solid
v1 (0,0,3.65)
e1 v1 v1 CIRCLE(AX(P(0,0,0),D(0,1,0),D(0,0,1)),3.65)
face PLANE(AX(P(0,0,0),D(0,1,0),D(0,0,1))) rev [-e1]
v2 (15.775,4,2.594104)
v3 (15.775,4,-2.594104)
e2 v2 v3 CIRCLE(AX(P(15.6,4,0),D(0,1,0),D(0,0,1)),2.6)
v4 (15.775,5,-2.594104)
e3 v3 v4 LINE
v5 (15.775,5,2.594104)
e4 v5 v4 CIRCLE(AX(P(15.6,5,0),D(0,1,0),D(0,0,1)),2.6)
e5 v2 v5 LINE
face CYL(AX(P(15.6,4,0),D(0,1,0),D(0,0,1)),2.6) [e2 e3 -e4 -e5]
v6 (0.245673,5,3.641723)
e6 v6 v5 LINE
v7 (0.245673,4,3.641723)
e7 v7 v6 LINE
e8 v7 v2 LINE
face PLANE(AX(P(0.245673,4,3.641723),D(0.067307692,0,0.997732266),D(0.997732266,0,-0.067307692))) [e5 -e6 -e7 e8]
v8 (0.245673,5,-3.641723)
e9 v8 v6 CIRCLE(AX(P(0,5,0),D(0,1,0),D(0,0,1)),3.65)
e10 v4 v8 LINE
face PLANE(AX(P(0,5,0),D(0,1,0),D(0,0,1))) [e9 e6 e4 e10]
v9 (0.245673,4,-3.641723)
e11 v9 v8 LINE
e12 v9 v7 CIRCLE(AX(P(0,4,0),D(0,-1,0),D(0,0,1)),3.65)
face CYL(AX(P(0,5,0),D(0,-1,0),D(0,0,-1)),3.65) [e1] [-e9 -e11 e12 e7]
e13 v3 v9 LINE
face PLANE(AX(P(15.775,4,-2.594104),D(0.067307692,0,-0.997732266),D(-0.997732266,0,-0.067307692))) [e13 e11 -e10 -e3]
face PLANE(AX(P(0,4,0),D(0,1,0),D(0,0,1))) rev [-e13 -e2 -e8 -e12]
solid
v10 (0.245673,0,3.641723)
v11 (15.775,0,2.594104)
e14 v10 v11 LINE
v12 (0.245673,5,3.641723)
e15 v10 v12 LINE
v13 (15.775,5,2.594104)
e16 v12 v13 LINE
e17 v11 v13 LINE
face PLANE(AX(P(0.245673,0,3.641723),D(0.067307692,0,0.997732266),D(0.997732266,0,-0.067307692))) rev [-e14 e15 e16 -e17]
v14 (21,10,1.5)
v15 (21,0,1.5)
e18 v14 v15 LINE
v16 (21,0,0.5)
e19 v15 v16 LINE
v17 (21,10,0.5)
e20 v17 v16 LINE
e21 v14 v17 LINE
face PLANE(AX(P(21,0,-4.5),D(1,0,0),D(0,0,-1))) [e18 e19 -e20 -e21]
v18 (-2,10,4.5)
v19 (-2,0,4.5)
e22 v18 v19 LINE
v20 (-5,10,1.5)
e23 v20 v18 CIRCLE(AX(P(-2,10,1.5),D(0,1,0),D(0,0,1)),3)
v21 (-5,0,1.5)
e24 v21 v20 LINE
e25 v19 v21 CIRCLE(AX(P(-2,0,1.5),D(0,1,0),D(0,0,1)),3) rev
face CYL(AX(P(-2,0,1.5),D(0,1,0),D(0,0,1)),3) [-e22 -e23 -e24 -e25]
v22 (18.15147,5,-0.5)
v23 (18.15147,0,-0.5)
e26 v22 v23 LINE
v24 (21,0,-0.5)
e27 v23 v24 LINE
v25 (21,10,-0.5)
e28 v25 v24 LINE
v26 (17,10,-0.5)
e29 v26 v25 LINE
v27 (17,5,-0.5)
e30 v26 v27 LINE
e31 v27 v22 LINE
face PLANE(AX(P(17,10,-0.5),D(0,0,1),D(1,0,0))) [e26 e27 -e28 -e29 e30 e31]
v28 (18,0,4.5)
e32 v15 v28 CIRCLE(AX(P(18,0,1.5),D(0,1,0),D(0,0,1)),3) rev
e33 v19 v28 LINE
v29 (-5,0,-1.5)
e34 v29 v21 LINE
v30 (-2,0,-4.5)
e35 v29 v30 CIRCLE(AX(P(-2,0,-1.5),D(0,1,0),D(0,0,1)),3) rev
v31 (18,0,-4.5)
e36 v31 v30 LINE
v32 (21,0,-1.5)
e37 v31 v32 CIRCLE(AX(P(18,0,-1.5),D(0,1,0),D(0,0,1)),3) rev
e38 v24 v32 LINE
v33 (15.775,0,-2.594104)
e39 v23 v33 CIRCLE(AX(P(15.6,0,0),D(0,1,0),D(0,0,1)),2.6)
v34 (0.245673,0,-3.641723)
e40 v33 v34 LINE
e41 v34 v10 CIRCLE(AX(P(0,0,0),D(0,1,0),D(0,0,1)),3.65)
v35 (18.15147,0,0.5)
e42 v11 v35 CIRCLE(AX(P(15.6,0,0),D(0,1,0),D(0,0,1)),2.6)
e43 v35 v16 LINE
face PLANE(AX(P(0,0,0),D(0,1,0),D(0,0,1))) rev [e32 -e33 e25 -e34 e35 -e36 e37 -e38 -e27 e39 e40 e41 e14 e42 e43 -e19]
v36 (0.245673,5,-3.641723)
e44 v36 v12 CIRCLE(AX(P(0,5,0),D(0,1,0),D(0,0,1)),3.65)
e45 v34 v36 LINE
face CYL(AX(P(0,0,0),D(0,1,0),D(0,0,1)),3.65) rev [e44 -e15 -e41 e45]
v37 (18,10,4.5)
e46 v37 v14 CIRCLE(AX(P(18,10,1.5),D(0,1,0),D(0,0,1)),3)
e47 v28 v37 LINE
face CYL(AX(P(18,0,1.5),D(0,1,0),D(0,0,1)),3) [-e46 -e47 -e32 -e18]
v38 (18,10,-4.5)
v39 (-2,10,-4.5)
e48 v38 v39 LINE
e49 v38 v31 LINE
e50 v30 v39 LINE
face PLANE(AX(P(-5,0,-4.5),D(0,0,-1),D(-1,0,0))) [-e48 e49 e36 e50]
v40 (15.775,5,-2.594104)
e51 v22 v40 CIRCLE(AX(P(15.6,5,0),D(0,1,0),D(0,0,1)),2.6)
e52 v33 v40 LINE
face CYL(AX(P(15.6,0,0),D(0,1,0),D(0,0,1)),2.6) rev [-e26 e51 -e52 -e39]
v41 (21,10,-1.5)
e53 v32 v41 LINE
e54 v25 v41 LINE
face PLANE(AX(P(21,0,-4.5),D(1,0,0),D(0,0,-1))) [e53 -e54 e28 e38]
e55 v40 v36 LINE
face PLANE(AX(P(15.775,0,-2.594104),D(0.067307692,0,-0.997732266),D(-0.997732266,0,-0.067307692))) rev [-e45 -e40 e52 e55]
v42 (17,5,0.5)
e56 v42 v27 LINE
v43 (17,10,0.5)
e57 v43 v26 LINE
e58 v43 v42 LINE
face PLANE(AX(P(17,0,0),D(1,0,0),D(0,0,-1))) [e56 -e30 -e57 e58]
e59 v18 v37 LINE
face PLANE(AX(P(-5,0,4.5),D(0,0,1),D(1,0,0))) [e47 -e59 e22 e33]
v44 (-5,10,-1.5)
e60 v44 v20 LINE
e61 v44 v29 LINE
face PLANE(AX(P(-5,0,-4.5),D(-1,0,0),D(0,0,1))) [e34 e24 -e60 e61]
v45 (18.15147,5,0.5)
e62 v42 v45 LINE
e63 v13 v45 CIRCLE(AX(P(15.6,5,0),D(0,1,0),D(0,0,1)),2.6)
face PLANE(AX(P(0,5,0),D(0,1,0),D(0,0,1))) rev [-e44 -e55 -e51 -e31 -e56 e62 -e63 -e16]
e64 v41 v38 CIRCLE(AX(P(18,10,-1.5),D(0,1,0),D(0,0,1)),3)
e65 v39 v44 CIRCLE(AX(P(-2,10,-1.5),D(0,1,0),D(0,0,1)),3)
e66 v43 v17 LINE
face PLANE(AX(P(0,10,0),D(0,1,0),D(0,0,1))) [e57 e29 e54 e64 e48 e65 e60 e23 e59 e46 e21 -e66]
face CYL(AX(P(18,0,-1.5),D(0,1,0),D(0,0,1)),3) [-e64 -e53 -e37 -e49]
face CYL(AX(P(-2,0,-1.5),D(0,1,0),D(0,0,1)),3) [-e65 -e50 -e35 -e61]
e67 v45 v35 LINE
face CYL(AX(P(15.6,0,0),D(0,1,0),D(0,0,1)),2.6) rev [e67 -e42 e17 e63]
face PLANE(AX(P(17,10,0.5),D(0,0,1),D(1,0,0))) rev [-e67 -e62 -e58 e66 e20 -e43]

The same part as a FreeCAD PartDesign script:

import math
import FreeCAD as App
import Part
import Sketcher
Q = App.Units.Quantity


def edges_at(feature, points):
    """Names of the edges that pass closest to the given points."""
    edges = feature.Shape.Edges
    near = lambda p: min(range(len(edges)), key=lambda i: edges[i].distToShape(Part.Vertex(*p))[0])
    return sorted({f"Edge{near(p) + 1}" for p in points})

doc = App.newDocument("Part")
params = doc.addObject("Spreadsheet::Sheet", "Params")
for row, (alias, value) in enumerate([
    ("sketch1_diameter", "7.3 mm"),
    ("pad1_length", "5 mm"),
    ("sketch2_radius", "2.6 mm"),
    ("sketch2_radius2", "3.65 mm"),
    ("pad2_length", "1 mm"),
    ("sketch3_radius", "2.6 mm"),
    ("sketch3_width", "26 mm"),
    ("sketch3_height", "9 mm"),
    ("sketch3_radius2", "3.65 mm"),
    ("pad3_length", "5 mm"),
    ("sketch4_width", "26 mm"),
    ("sketch4_height", "9 mm"),
    ("pad4_length", "5 mm"),
    ("sketch5_width", "10 mm"),
    ("sketch5_height", "1 mm"),
    ("pocket1_length", "4 mm"),
    ("fillet_radius", "3 mm"),
    ("fillet2_radius", "3 mm"),
], start=1):
    params.set(f"A{row}", alias)
    params.set(f"B{row}", "=" + value)
    params.setAlias(f"B{row}", alias)

body = doc.addObject("PartDesign::Body", "Body")

# Sketch on XZ plane
sketch1 = doc.addObject("Sketcher::SketchObject", "Sketch")
body.addObject(sketch1)
sketch1.AttachmentSupport = (doc.XZ_Plane, [""])
sketch1.MapMode = "FlatFace"
sketch1.addGeometry(Part.Circle(App.Vector(0, 0, 0), App.Vector(0, 0, 1), 3.6), False)
sketch1.addConstraint([
    Sketcher.Constraint("Coincident", 0, 3, -1, 1),
    Sketcher.Constraint("Diameter", 0, Q("7.3 mm")),
])
sketch1.setExpression("Constraints[1]", "Params.sketch1_diameter")
pad1 = doc.addObject("PartDesign::Pad", "Pad")
body.addObject(pad1)
pad1.Profile = sketch1
pad1.setExpression("Length", "Params.pad1_length")
pad1.Reversed = True

# Sketch on XZ plane
sketch2 = doc.addObject("Sketcher::SketchObject", "Sketch001")
body.addObject(sketch2)
sketch2.AttachmentSupport = (doc.XZ_Plane, [""])
sketch2.MapMode = "FlatFace"
sketch2.AttachmentOffset = App.Placement(App.Vector(0, 0, -4), App.Rotation())
sketch2.addGeometry([
    Part.LineSegment(App.Vector(0.2, 3.6, 0), App.Vector(15.8, 2.6, 0)),
    Part.ArcOfCircle(Part.Circle(App.Vector(15.6, 0, 0), App.Vector(0, 0, 1), 2.6), math.radians(-86), math.radians(86)),
    Part.LineSegment(App.Vector(15.8, -2.6, 0), App.Vector(0.2, -3.6, 0)),
    Part.ArcOfCircle(Part.Circle(App.Vector(0, 0, 0), App.Vector(0, 0, 1), 3.6), math.radians(-86), math.radians(86)),
], False)
sketch2.addConstraint([
    Sketcher.Constraint("Tangent", 0, 2, 1, 2),
    Sketcher.Constraint("Tangent", 1, 1, 2, 1),
    Sketcher.Constraint("Tangent", 2, 2, 3, 1),
    Sketcher.Constraint("Tangent", 3, 2, 0, 1),
    Sketcher.Constraint("Coincident", 3, 3, -1, 1),
    Sketcher.Constraint("PointOnObject", 1, 3, -1),
    Sketcher.Constraint("Radius", 1, Q("2.6 mm")),
    Sketcher.Constraint("Radius", 3, Q("3.65 mm")),
    Sketcher.Constraint("DistanceX", -1, 1, 1, 3, Q("15.6 mm")),
])
sketch2.setExpression("Constraints[6]", "Params.sketch2_radius")
sketch2.setExpression("Constraints[7]", "Params.sketch2_radius2")
pad2 = doc.addObject("PartDesign::Pad", "Pad001")
body.addObject(pad2)
pad2.Profile = sketch2
pad2.setExpression("Length", "Params.pad2_length")
pad2.Reversed = True
body2 = doc.addObject("PartDesign::Body", "Body001")

# Sketch on XZ plane
sketch3 = doc.addObject("Sketcher::SketchObject", "Sketch002")
body2.addObject(sketch3)
sketch3.AttachmentSupport = (doc.getObject("XZ_Plane001"), [""])
sketch3.MapMode = "FlatFace"
sketch3.AttachmentOffset = App.Placement(App.Vector(0, 0, -5), App.Rotation())
sketch3.addGeometry([
    Part.LineSegment(App.Vector(-5, -4.5, 0), App.Vector(-5, 4.5, 0)),  # 0
    Part.LineSegment(App.Vector(-5, 4.5, 0), App.Vector(21, 4.5, 0)),  # 1
    Part.LineSegment(App.Vector(21, 4.5, 0), App.Vector(21, -4.5, 0)),  # 2
    Part.LineSegment(App.Vector(21, -4.5, 0), App.Vector(-5, -4.5, 0)),  # 3
    Part.LineSegment(App.Vector(15.8, 2.6, 0), App.Vector(0.2, 3.6, 0)),  # 4
    Part.ArcOfCircle(Part.Circle(App.Vector(0, 0, 0), App.Vector(0, 0, 1), 3.6), math.radians(86), math.radians(274)),  # 5
    Part.LineSegment(App.Vector(0.2, -3.6, 0), App.Vector(15.8, -2.6, 0)),  # 6
    Part.ArcOfCircle(Part.Circle(App.Vector(15.6, 0, 0), App.Vector(0, 0, 1), 2.6), math.radians(-86), math.radians(86)),  # 7
], False)
sketch3.addConstraint([
    Sketcher.Constraint("Coincident", 0, 2, 1, 1),
    Sketcher.Constraint("Coincident", 1, 2, 2, 1),
    Sketcher.Constraint("Coincident", 2, 2, 3, 1),
    Sketcher.Constraint("Coincident", 3, 2, 0, 1),
    Sketcher.Constraint("Tangent", 4, 2, 5, 1),
    Sketcher.Constraint("Tangent", 5, 2, 6, 1),
    Sketcher.Constraint("Tangent", 6, 2, 7, 1),
    Sketcher.Constraint("Tangent", 7, 2, 4, 1),
    Sketcher.Constraint("Vertical", 0),
    Sketcher.Constraint("Horizontal", 1),
    Sketcher.Constraint("Vertical", 2),
    Sketcher.Constraint("Horizontal", 3),
    Sketcher.Constraint("Coincident", 5, 3, -1, 1),
    Sketcher.Constraint("PointOnObject", 7, 3, -1),
    Sketcher.Constraint("Radius", 7, Q("2.6 mm")),
    Sketcher.Constraint("DistanceX", 1, 1, 1, 2, Q("26 mm")),
    Sketcher.Constraint("DistanceY", 0, 1, 0, 2, Q("9 mm")),
    Sketcher.Constraint("Radius", 5, Q("3.65 mm")),
    Sketcher.Constraint("DistanceX", 0, 2, -1, 1, Q("5 mm")),
    Sketcher.Constraint("DistanceX", -1, 1, 7, 3, Q("15.6 mm")),
    Sketcher.Constraint("DistanceY", -1, 1, 0, 2, Q("4.5 mm")),
])
sketch3.setExpression("Constraints[14]", "Params.sketch3_radius")
sketch3.setExpression("Constraints[15]", "Params.sketch3_width")
sketch3.setExpression("Constraints[16]", "Params.sketch3_height")
sketch3.setExpression("Constraints[17]", "Params.sketch3_radius2")
pad3 = doc.addObject("PartDesign::Pad", "Pad002")
body2.addObject(pad3)
pad3.Profile = sketch3
pad3.setExpression("Length", "Params.pad3_length")

# Sketch on XZ plane
sketch4 = doc.addObject("Sketcher::SketchObject", "Sketch003")
body2.addObject(sketch4)
sketch4.AttachmentSupport = (doc.getObject("XZ_Plane001"), [""])
sketch4.MapMode = "FlatFace"
sketch4.AttachmentOffset = App.Placement(App.Vector(0, 0, -5), App.Rotation())
sketch4.addGeometry([
    Part.LineSegment(App.Vector(-5, -4, 0), App.Vector(-5, 4, 0)),
    Part.LineSegment(App.Vector(-5, 4, 0), App.Vector(21, 4, 0)),
    Part.LineSegment(App.Vector(21, 4, 0), App.Vector(21, -4, 0)),
    Part.LineSegment(App.Vector(21, -4, 0), App.Vector(-5, -4, 0)),
], False)
sketch4.addConstraint([
    Sketcher.Constraint("Coincident", 0, 2, 1, 1),
    Sketcher.Constraint("Coincident", 1, 2, 2, 1),
    Sketcher.Constraint("Coincident", 2, 2, 3, 1),
    Sketcher.Constraint("Coincident", 3, 2, 0, 1),
    Sketcher.Constraint("Vertical", 0),
    Sketcher.Constraint("Horizontal", 1),
    Sketcher.Constraint("Vertical", 2),
    Sketcher.Constraint("Horizontal", 3),
    Sketcher.Constraint("DistanceX", 1, 1, 1, 2, Q("26 mm")),
    Sketcher.Constraint("DistanceY", 0, 1, 0, 2, Q("9 mm")),
    Sketcher.Constraint("DistanceX", 0, 2, -1, 1, Q("5 mm")),
    Sketcher.Constraint("DistanceY", -1, 1, 0, 2, Q("4.5 mm")),
])
sketch4.setExpression("Constraints[8]", "Params.sketch4_width")
sketch4.setExpression("Constraints[9]", "Params.sketch4_height")
pad4 = doc.addObject("PartDesign::Pad", "Pad003")
body2.addObject(pad4)
pad4.Profile = sketch4
pad4.setExpression("Length", "Params.pad4_length")
pad4.Reversed = True

# Sketch on YZ plane
sketch5 = doc.addObject("Sketcher::SketchObject", "Sketch004")
body2.addObject(sketch5)
sketch5.AttachmentSupport = (doc.getObject("YZ_Plane001"), [""])
sketch5.MapMode = "FlatFace"
sketch5.AttachmentOffset = App.Placement(App.Vector(0, 0, 21), App.Rotation())
sketch5.addGeometry([
    Part.LineSegment(App.Vector(10, 0.5, 0), App.Vector(0, 0.5, 0)),
    Part.LineSegment(App.Vector(0, 0.5, 0), App.Vector(0, -0.5, 0)),
    Part.LineSegment(App.Vector(0, -0.5, 0), App.Vector(10, -0.5, 0)),
    Part.LineSegment(App.Vector(10, -0.5, 0), App.Vector(10, 0.5, 0)),
], False)
sketch5.addConstraint([
    Sketcher.Constraint("Coincident", 0, 2, 1, 1),
    Sketcher.Constraint("Coincident", 1, 2, 2, 1),
    Sketcher.Constraint("Coincident", 2, 2, 3, 1),
    Sketcher.Constraint("Coincident", 3, 2, 0, 1),
    Sketcher.Constraint("Horizontal", 0),
    Sketcher.Constraint("Vertical", 1),
    Sketcher.Constraint("Horizontal", 2),
    Sketcher.Constraint("Vertical", 3),
    Sketcher.Constraint("Symmetric", 0, 2, 1, 2, -1, 1),
    Sketcher.Constraint("DistanceX", 0, 2, 0, 1, Q("10 mm")),
    Sketcher.Constraint("DistanceY", 1, 2, 1, 1, Q("1 mm")),
])
sketch5.setExpression("Constraints[9]", "Params.sketch5_width")
sketch5.setExpression("Constraints[10]", "Params.sketch5_height")
pocket1 = doc.addObject("PartDesign::Pocket", "Pocket")
body2.addObject(pocket1)
pocket1.Profile = sketch5
pocket1.setExpression("Length", "Params.pocket1_length")
doc.recompute()

fillet = doc.addObject("PartDesign::Fillet", "Fillet")
body2.addObject(fillet)
fillet.Base = (pocket1, edges_at(pocket1, [(-5, 5, -4.5), (-5, 5, 4.5)]))
fillet.setExpression("Radius", "Params.fillet_radius")
doc.recompute()

fillet2 = doc.addObject("PartDesign::Fillet", "Fillet001")
body2.addObject(fillet2)
fillet2.Base = (fillet, edges_at(fillet, [(21, 5, -4.5), (21, 5, 4.5)]))
fillet2.setExpression("Radius", "Params.fillet2_radius")

doc.recompute()
